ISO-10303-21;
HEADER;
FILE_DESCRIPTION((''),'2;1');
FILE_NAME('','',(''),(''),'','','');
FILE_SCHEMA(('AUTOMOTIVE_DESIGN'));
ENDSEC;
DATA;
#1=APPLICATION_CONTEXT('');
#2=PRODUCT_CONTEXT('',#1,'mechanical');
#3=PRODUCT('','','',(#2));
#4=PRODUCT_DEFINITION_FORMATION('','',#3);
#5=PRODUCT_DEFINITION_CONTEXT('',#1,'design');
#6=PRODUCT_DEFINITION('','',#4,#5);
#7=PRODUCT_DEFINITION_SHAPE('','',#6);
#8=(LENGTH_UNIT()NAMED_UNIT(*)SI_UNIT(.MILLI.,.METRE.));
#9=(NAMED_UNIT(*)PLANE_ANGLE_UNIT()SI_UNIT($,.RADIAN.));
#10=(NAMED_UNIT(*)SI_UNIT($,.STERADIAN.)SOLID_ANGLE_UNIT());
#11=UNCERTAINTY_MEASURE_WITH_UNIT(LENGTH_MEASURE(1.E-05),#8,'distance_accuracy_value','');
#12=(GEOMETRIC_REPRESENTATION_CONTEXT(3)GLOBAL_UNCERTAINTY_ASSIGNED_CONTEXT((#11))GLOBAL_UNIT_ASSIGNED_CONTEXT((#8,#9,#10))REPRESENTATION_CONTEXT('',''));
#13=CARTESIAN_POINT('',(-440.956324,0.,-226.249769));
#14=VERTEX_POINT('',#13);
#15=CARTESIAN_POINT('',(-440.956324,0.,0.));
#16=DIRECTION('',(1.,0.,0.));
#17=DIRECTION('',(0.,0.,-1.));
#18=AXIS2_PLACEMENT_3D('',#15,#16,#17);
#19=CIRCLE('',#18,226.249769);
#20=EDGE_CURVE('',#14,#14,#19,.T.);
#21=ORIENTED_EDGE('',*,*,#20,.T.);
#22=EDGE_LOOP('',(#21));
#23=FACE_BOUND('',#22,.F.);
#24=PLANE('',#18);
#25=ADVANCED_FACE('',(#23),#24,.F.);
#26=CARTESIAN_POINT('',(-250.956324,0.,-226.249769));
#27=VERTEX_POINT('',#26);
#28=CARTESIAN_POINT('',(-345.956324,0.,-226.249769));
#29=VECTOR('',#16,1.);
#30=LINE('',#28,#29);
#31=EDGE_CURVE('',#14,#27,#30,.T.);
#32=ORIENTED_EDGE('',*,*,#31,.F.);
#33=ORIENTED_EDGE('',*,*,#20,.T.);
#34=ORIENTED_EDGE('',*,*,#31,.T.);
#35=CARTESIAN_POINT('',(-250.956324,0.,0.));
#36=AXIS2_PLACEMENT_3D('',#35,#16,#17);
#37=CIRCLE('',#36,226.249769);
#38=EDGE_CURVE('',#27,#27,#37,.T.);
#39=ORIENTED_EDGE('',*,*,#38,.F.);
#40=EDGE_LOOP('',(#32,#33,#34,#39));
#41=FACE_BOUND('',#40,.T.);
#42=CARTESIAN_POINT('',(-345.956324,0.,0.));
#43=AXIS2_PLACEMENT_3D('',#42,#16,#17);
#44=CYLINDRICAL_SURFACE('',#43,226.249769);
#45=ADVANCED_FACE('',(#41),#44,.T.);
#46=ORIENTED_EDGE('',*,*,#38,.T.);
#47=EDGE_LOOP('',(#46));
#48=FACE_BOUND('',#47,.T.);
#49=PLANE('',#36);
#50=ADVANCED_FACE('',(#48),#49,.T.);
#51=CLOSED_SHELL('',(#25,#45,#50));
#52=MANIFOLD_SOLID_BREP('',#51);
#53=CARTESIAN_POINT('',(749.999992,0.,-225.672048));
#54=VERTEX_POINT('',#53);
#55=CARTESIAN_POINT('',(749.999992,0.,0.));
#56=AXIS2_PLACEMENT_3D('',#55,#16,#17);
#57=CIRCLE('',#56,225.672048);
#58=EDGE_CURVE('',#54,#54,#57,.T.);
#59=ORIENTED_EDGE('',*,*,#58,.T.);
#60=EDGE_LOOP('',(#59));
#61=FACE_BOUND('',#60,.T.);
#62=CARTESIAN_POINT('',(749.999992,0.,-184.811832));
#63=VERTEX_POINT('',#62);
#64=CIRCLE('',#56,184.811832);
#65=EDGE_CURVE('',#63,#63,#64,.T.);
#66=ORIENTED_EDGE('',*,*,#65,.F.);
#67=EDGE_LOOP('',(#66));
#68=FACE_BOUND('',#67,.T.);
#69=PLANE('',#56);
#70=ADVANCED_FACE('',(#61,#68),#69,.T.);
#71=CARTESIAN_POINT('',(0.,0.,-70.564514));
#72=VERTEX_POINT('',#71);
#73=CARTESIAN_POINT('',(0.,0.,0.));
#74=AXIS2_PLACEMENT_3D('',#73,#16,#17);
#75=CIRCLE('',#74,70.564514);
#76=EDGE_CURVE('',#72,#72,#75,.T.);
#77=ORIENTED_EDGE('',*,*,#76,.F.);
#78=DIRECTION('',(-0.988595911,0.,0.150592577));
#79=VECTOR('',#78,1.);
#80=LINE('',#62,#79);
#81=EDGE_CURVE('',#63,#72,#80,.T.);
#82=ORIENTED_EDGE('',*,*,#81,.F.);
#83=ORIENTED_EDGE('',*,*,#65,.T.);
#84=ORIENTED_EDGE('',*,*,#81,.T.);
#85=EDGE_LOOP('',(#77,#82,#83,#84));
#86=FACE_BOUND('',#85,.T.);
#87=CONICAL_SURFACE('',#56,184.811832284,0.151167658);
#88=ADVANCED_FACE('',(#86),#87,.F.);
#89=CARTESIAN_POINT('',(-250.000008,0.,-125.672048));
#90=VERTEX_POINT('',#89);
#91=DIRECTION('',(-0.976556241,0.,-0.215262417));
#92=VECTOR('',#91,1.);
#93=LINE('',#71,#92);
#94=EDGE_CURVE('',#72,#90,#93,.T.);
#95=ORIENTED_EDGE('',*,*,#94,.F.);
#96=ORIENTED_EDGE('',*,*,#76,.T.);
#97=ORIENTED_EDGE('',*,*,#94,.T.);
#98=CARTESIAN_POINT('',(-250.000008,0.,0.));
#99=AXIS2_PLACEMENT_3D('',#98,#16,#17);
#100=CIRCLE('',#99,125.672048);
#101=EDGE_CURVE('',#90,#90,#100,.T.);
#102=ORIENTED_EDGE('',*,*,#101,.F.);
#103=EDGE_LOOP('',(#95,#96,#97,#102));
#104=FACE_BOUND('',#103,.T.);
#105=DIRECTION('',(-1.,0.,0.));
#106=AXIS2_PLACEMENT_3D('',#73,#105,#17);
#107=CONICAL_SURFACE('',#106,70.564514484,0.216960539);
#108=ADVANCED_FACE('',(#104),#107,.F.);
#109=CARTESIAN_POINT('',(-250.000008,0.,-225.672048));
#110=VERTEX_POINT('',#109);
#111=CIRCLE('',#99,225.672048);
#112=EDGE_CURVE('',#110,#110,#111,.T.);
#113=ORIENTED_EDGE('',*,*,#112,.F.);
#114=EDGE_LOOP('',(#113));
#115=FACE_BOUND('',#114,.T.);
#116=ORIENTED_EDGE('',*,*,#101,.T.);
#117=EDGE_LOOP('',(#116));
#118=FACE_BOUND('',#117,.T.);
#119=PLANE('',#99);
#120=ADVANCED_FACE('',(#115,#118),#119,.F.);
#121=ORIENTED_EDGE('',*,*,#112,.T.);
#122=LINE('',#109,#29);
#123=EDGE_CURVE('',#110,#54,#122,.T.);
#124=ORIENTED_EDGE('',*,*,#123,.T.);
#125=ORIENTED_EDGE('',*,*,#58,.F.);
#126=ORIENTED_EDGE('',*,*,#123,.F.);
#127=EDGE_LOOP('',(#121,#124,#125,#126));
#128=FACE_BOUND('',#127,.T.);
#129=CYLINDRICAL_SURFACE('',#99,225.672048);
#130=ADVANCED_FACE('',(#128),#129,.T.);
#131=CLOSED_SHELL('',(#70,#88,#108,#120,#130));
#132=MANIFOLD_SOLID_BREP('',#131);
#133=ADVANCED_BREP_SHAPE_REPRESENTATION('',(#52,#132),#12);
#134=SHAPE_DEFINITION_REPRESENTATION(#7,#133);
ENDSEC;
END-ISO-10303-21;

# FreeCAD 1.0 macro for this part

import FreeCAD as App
import Part
import Sketcher
from FreeCAD import Vector
Q = App.Units.Quantity


def add_polygon(sketch, points):
    """Adds a closed chain of lines whose ends are joined by coincident constraints."""
    first, n = sketch.GeometryCount, len(points)
    for a, b in zip(points, points[1:] + points[:1]):
        sketch.addGeometry(Part.LineSegment(App.Vector(*a, 0), App.Vector(*b, 0)), False)
    for i in range(n):
        sketch.addConstraint(Sketcher.Constraint("Coincident", first + i, 2, first + (i + 1) % n, 1))

doc = App.newDocument("Part")
body = doc.addObject("PartDesign::Body", "Body")

# Sketch on XZ plane
sketch1 = body.newObject("Sketcher::SketchObject", "Sketch")
sketch1.AttachmentSupport = (doc.getObject("XZ_Plane"), [""])
sketch1.MapMode = "FlatFace"
add_polygon(sketch1, [(0, -71), (-250, -126), (-250, -226), (750, -226), (750, -185)])  # lines 0-4
sketch1.addConstraint(Sketcher.Constraint("Vertical", 1))
sketch1.addConstraint(Sketcher.Constraint("Horizontal", 2))
sketch1.addConstraint(Sketcher.Constraint("Vertical", 3))
sketch1.addConstraint(Sketcher.Constraint("PointOnObject", 4, 2, -2))
sketch1.addConstraint(Sketcher.Constraint("DistanceX", 2, 1, 2, 2, Q("1000 mm")))
sketch1.addConstraint(Sketcher.Constraint("DistanceY", 1, 2, 1, 1, Q("100 mm")))
sketch1.addConstraint(Sketcher.Constraint("Distance", 0, Q("256.001649 mm")))
sketch1.addConstraint(Sketcher.Constraint("DistanceY", 3, 1, 3, 2, Q("40.860216 mm")))
sketch1.addConstraint(Sketcher.Constraint("DistanceY", 0, 2, -1, 1, Q("125.672048 mm")))
sketch1.addConstraint(Sketcher.Constraint("Distance", 4, Q("758.651724 mm")))
revolution = body.newObject("PartDesign::Revolution", "Revolution")
revolution.Profile = sketch1
revolution.ReferenceAxis = (sketch1, ["H_Axis"])
revolution.Angle = 360
body2 = doc.addObject("PartDesign::Body", "Body001")

# Sketch on XZ plane
sketch2 = body2.newObject("Sketcher::SketchObject", "Sketch001")
sketch2.AttachmentSupport = (doc.getObject("XZ_Plane001"), [""])
sketch2.MapMode = "FlatFace"
add_polygon(sketch2, [(-441, 0), (-441, -226), (-251, -226), (-251, 0)])  # lines 0-3
sketch2.addConstraint(Sketcher.Constraint("Vertical", 0))
sketch2.addConstraint(Sketcher.Constraint("Horizontal", 1))
sketch2.addConstraint(Sketcher.Constraint("Vertical", 2))
sketch2.addConstraint(Sketcher.Constraint("Horizontal", 3))
sketch2.addConstraint(Sketcher.Constraint("PointOnObject", 2, 2, -1))
sketch2.addConstraint(Sketcher.Constraint("DistanceX", 1, 1, 1, 2, Q("190 mm")))
sketch2.addConstraint(Sketcher.Constraint("DistanceY", 0, 2, 0, 1, Q("226.249769 mm")))
sketch2.addConstraint(Sketcher.Constraint("DistanceX", 0, 2, -1, 1, Q("440.956324 mm")))
revolution2 = body2.newObject("PartDesign::Revolution", "Revolution001")
revolution2.Profile = sketch2
revolution2.ReferenceAxis = (sketch2, ["H_Axis"])
revolution2.Angle = 360

doc.recompute()
